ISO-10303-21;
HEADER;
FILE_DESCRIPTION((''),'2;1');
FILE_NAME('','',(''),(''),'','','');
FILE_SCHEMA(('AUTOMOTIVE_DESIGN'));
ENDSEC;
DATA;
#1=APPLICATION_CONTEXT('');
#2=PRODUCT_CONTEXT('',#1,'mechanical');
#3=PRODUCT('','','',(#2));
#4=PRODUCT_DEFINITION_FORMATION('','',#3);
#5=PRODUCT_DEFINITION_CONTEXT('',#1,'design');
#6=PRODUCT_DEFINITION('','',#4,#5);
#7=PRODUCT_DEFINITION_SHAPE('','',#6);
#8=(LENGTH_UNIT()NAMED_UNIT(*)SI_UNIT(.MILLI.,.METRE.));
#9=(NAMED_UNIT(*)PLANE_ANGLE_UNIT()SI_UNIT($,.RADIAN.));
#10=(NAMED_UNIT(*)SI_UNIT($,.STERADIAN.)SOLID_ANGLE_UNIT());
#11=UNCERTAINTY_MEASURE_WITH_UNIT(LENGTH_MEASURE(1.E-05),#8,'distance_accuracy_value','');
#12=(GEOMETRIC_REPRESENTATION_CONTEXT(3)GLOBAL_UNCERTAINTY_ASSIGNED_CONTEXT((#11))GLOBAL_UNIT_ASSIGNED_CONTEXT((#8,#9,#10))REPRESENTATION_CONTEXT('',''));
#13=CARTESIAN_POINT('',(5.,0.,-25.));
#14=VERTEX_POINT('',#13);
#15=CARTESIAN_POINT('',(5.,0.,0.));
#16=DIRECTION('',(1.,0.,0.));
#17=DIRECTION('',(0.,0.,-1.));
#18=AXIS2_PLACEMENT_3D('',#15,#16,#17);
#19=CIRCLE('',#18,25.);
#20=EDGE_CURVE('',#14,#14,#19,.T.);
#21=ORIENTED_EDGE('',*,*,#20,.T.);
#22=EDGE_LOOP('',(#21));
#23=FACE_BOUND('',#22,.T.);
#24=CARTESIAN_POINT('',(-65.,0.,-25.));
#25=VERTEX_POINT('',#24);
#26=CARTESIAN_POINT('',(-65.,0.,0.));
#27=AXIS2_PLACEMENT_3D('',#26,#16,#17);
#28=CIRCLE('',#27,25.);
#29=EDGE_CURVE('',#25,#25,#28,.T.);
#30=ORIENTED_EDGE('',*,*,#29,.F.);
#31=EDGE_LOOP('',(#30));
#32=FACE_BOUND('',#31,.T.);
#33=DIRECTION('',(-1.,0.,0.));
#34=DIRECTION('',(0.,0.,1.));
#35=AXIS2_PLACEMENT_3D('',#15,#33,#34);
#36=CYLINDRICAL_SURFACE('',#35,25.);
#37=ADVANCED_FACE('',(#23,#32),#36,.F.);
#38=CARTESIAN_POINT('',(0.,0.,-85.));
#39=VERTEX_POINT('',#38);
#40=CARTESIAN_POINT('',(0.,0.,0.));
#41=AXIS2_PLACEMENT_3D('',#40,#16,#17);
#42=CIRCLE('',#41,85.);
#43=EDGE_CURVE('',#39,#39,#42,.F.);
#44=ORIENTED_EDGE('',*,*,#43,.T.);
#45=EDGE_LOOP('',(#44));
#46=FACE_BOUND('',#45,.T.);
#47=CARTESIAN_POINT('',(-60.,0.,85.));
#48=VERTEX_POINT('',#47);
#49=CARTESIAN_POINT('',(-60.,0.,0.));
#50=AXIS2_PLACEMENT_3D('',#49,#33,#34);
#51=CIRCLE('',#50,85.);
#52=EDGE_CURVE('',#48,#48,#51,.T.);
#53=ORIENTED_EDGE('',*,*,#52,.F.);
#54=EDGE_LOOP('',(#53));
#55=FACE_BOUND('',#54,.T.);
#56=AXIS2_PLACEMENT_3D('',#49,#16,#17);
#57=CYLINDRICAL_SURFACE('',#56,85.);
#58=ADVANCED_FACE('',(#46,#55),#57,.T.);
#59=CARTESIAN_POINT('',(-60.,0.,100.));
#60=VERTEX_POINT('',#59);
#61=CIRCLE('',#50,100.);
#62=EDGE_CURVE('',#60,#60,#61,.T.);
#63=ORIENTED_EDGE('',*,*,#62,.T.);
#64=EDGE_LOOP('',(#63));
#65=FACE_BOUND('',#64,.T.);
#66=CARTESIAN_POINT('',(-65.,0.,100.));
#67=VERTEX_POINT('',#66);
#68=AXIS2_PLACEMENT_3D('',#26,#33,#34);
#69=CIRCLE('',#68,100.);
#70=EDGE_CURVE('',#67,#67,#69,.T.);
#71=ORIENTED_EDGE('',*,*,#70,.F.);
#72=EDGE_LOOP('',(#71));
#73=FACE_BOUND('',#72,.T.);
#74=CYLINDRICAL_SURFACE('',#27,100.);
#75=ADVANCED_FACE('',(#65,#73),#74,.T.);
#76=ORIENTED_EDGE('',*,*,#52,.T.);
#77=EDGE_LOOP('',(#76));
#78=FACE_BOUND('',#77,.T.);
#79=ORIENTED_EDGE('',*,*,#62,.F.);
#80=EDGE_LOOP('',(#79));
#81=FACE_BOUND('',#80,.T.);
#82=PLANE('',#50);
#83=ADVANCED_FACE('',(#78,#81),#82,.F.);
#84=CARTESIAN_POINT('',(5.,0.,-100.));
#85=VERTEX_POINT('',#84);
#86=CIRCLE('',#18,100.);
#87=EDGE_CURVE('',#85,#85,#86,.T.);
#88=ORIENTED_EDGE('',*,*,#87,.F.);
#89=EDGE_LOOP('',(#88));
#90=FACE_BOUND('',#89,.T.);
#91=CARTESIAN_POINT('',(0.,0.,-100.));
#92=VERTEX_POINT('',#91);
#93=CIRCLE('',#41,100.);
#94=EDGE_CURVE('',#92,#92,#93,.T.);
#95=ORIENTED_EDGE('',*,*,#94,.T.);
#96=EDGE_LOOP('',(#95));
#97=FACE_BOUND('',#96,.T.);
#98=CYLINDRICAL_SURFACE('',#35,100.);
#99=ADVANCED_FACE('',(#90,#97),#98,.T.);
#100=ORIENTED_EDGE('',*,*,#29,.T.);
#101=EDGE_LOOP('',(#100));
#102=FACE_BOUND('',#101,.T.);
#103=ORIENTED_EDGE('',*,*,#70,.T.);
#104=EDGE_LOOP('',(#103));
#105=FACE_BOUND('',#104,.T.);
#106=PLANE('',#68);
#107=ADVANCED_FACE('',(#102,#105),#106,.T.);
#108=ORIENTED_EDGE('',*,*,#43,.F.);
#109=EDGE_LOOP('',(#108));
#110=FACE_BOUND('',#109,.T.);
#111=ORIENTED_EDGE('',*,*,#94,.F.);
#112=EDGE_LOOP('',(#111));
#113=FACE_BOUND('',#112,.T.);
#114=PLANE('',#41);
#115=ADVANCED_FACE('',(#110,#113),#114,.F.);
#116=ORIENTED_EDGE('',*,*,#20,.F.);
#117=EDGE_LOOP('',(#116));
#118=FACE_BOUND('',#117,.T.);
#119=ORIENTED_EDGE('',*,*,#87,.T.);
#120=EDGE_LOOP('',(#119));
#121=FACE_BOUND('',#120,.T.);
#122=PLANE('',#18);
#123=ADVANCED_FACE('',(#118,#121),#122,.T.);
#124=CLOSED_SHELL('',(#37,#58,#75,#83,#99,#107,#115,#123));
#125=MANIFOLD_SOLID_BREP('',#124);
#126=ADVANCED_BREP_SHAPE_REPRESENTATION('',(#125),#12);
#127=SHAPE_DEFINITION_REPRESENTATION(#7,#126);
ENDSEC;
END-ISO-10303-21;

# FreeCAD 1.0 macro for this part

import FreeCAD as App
import Part
import Sketcher

doc = App.newDocument("Part")
body = doc.addObject("PartDesign::Body", "Body")

# Sketch on YZ plane
sketch1 = body.newObject("Sketcher::SketchObject", "Sketch")
sketch1.AttachmentSupport = (doc.getObject("YZ_Plane"), [""])
sketch1.MapMode = "FlatFace"
sketch1.addGeometry([
    Part.Circle(App.Vector(0, 0, 0), App.Vector(0, 0, 1), 100),
    Part.Circle(App.Vector(0, 0, 0), App.Vector(0, 0, 1), 25),
], False)
sketch1.addConstraint([
    Sketcher.Constraint("Coincident", 0, 3, -1, 1),
    Sketcher.Constraint("Coincident", 1, 3, -1, 1),
    Sketcher.Constraint("Diameter", 0, 200.0),
    Sketcher.Constraint("Diameter", 1, 50.0),
])
pad1 = body.newObject("PartDesign::Pad", "Pad")
pad1.Profile = sketch1
pad1.Length = 5

# Sketch on YZ plane
sketch2 = body.newObject("Sketcher::SketchObject", "Sketch001")
sketch2.AttachmentSupport = (doc.getObject("YZ_Plane"), [""])
sketch2.MapMode = "FlatFace"
sketch2.addGeometry(Part.Circle(App.Vector(0, 0, 0), App.Vector(0, 0, 1), 85), False)
sketch2.addConstraint([
    Sketcher.Constraint("Coincident", 0, 3, -1, 1),
    Sketcher.Constraint("Diameter", 0, 170.0),
])
pad2 = body.newObject("PartDesign::Pad", "Pad001")
pad2.Profile = sketch2
pad2.Length = 60
pad2.Reversed = True

# Sketch on YZ plane
sketch3 = body.newObject("Sketcher::SketchObject", "Sketch002")
sketch3.AttachmentSupport = (doc.getObject("YZ_Plane"), [""])
sketch3.MapMode = "FlatFace"
sketch3.AttachmentOffset = App.Placement(App.Vector(0, 0, -60), App.Rotation())
sketch3.addGeometry(Part.Circle(App.Vector(0, 0, 0), App.Vector(0, 0, 1), 100), False)
sketch3.addConstraint([
    Sketcher.Constraint("Coincident", 0, 3, -1, 1),
    Sketcher.Constraint("Diameter", 0, 200.0),
])
pad3 = body.newObject("PartDesign::Pad", "Pad002")
pad3.Profile = sketch3
pad3.Length = 5
pad3.Reversed = True

# Sketch on YZ plane
sketch4 = body.newObject("Sketcher::SketchObject", "Sketch003")
sketch4.AttachmentSupport = (doc.getObject("YZ_Plane"), [""])
sketch4.MapMode = "FlatFace"
sketch4.addGeometry(Part.Circle(App.Vector(0, 0, 0), App.Vector(0, 0, 1), 25), False)
sketch4.addConstraint([
    Sketcher.Constraint("Coincident", 0, 3, -1, 1),
    Sketcher.Constraint("Diameter", 0, 50.0),
])
pocket1 = body.newObject("PartDesign::Pocket", "Pocket")
pocket1.Profile = sketch4
pocket1.Length = 65

doc.recompute()
